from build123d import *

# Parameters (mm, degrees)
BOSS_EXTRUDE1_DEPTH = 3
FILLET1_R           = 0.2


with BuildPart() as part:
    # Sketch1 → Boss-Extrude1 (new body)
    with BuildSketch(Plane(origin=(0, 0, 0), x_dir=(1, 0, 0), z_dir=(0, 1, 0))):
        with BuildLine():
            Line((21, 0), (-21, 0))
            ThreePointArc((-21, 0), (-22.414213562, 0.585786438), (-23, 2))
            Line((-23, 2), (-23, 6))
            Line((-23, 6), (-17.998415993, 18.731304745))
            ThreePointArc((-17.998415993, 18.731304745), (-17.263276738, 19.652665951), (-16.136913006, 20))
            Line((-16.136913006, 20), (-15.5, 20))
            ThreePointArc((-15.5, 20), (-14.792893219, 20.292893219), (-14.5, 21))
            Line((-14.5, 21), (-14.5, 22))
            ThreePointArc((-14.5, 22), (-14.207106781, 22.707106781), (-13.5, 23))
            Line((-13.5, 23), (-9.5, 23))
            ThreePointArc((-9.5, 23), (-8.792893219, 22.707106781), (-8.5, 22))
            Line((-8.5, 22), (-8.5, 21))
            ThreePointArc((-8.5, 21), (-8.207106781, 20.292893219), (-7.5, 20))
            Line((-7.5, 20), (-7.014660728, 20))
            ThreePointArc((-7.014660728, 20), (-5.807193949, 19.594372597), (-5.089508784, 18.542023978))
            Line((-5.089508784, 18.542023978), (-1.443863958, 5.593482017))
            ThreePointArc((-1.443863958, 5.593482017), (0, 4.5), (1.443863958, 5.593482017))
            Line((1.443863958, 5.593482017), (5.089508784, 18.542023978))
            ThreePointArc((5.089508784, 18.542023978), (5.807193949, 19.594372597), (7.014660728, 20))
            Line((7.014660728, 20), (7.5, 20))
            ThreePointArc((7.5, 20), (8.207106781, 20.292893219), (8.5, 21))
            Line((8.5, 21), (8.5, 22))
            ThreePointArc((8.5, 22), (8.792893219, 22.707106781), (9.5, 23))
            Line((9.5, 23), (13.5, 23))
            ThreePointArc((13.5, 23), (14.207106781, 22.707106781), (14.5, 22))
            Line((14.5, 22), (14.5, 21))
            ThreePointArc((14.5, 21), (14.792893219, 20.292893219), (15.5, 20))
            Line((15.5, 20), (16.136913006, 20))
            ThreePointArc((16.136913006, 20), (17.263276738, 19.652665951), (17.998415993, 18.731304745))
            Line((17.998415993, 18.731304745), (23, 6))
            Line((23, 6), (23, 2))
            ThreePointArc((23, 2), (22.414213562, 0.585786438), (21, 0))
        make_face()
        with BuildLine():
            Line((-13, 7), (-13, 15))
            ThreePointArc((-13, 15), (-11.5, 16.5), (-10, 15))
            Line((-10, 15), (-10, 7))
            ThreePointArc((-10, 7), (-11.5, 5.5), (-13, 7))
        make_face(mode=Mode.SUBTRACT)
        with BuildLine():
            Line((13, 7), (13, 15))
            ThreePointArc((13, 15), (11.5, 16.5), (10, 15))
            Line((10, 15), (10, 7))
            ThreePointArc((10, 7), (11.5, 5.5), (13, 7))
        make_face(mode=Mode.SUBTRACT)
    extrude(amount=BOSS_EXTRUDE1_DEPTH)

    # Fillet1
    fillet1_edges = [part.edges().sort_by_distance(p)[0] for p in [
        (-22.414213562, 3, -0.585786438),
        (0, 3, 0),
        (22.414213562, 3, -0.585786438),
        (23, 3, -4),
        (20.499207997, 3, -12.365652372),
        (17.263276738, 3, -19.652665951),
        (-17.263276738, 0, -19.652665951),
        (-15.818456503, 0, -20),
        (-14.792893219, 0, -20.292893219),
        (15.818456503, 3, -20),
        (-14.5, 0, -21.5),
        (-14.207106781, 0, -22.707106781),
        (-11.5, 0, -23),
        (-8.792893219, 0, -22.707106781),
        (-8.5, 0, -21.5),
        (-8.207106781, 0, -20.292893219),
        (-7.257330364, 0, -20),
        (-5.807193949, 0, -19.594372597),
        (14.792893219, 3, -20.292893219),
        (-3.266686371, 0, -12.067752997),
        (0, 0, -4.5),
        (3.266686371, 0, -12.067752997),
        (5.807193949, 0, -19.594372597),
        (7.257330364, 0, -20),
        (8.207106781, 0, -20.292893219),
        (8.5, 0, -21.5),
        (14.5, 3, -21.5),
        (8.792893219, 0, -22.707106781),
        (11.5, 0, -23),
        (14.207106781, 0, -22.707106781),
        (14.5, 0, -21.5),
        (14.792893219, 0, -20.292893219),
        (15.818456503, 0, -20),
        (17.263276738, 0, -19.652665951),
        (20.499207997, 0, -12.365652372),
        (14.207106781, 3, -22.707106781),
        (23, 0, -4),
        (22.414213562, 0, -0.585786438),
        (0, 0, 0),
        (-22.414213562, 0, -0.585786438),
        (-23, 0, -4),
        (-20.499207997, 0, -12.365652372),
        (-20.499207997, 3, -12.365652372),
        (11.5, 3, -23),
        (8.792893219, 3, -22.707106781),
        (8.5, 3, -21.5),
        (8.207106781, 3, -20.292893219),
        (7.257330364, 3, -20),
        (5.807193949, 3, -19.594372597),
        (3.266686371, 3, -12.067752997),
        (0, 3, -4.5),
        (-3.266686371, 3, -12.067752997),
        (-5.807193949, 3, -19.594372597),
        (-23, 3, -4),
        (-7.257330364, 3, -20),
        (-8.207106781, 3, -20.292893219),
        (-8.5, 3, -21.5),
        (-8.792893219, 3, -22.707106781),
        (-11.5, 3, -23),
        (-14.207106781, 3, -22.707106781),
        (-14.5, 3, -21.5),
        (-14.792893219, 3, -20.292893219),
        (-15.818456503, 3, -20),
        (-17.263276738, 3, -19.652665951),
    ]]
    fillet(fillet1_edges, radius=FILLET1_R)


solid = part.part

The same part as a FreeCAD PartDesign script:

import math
import FreeCAD as App
import Part
import Sketcher

V = App.Vector
Q = App.Units.Quantity


def edges_at(feature, points):
    """Names of the edges that pass closest to the given points."""
    edges = feature.Shape.Edges
    near = lambda p: min(range(len(edges)), key=lambda i: edges[i].distToShape(Part.Vertex(*p))[0])
    return sorted({f"Edge{near(p) + 1}" for p in points})

doc = App.newDocument("Part")
params = doc.addObject("Spreadsheet::Sheet", "Params")
for row, (alias, value) in enumerate([
    ("sketch1_radius", "2 mm"),
    ("sketch1_radius2", "1 mm"),
    ("sketch1_radius3", "1.5 mm"),
    ("sketch1_width", "42 mm"),
    ("sketch1_width2", "4 mm"),
    ("pad1_length", "3 mm"),
    ("fillet_radius", "0.2 mm"),
], start=1):
    params.set(f"A{row}", alias)
    params.set(f"B{row}", "=" + value)
    params.setAlias(f"B{row}", alias)

body = doc.addObject("PartDesign::Body", "Body")

# Sketch on XZ plane
sketch1 = body.newObject("Sketcher::SketchObject", "Sketch")
sketch1.AttachmentSupport = (doc.getObject("XZ_Plane"), [""])
sketch1.MapMode = "FlatFace"
sketch1.addGeometry([
    Part.LineSegment(V(-21, 0, 0), V(21, 0, 0)),  # 0
    Part.ArcOfCircle(Part.Circle(V(21, -2, 0), V(0, 0, 1), 2), math.radians(0), math.radians(90)),  # 1
    Part.LineSegment(V(23, -2, 0), V(23, -6, 0)),  # 2
    Part.LineSegment(V(23, -6, 0), V(17.998416, -18.731305, 0)),  # 3
    Part.ArcOfCircle(Part.Circle(V(16.136913, -18, 0), V(0, 0, 1), 2), math.radians(-90), math.radians(-21.447736)),  # 4
    Part.LineSegment(V(16.136913, -20, 0), V(15.5, -20, 0)),  # 5
    Part.ArcOfCircle(Part.Circle(V(15.5, -21, 0), V(0, 0, 1), 1), math.radians(90), math.radians(180)),  # 6
    Part.LineSegment(V(14.5, -21, 0), V(14.5, -22, 0)),  # 7
    Part.ArcOfCircle(Part.Circle(V(13.5, -22, 0), V(0, 0, 1), 1), math.radians(-90), math.radians(0)),  # 8
    Part.LineSegment(V(13.5, -23, 0), V(9.5, -23, 0)),  # 9
    Part.ArcOfCircle(Part.Circle(V(9.5, -22, 0), V(0, 0, 1), 1), math.radians(-180), math.radians(-90)),  # 10
    Part.LineSegment(V(8.5, -22, 0), V(8.5, -21, 0)),  # 11
    Part.ArcOfCircle(Part.Circle(V(7.5, -21, 0), V(0, 0, 1), 1), math.radians(0), math.radians(90)),  # 12
    Part.LineSegment(V(7.5, -20, 0), V(7.014661, -20, 0)),  # 13
    Part.ArcOfCircle(Part.Circle(V(7.014661, -18, 0), V(0, 0, 1), 2), math.radians(-164.275505), math.radians(-90)),  # 14
    Part.LineSegment(V(5.089509, -18.542024, 0), V(1.443864, -5.593482, 0)),  # 15
    Part.ArcOfCircle(Part.Circle(V(0, -6, 0), V(0, 0, 1), 1.5), math.radians(15.724495), math.radians(164.275505)),  # 16
    Part.LineSegment(V(-1.443864, -5.593482, 0), V(-5.089509, -18.542024, 0)),  # 17
    Part.ArcOfCircle(Part.Circle(V(-7.014661, -18, 0), V(0, 0, 1), 2), math.radians(-90), math.radians(-15.724495)),  # 18
    Part.LineSegment(V(-7.014661, -20, 0), V(-7.5, -20, 0)),  # 19
    Part.ArcOfCircle(Part.Circle(V(-7.5, -21, 0), V(0, 0, 1), 1), math.radians(90), math.radians(180)),  # 20
    Part.LineSegment(V(-8.5, -21, 0), V(-8.5, -22, 0)),  # 21
    Part.ArcOfCircle(Part.Circle(V(-9.5, -22, 0), V(0, 0, 1), 1), math.radians(-90), math.radians(0)),  # 22
    Part.LineSegment(V(-9.5, -23, 0), V(-13.5, -23, 0)),  # 23
    Part.ArcOfCircle(Part.Circle(V(-13.5, -22, 0), V(0, 0, 1), 1), math.radians(-180), math.radians(-90)),  # 24
    Part.LineSegment(V(-14.5, -22, 0), V(-14.5, -21, 0)),  # 25
    Part.ArcOfCircle(Part.Circle(V(-15.5, -21, 0), V(0, 0, 1), 1), math.radians(0), math.radians(90)),  # 26
    Part.LineSegment(V(-15.5, -20, 0), V(-16.136913, -20, 0)),  # 27
    Part.ArcOfCircle(Part.Circle(V(-16.136913, -18, 0), V(0, 0, 1), 2), math.radians(-158.552264), math.radians(-90)),  # 28
    Part.LineSegment(V(-17.998416, -18.731305, 0), V(-23, -6, 0)),  # 29
    Part.LineSegment(V(-23, -6, 0), V(-23, -2, 0)),  # 30
    Part.ArcOfCircle(Part.Circle(V(-21, -2, 0), V(0, 0, 1), 2), math.radians(90), math.radians(180)),  # 31
    Part.ArcOfCircle(Part.Circle(V(11.5, -7, 0), V(0, 0, 1), 1.5), math.radians(0), math.radians(180)),  # 32
    Part.LineSegment(V(10, -7, 0), V(10, -15, 0)),  # 33
    Part.ArcOfCircle(Part.Circle(V(11.5, -15, 0), V(0, 0, 1), 1.5), math.radians(180), math.radians(360)),  # 34
    Part.LineSegment(V(13, -15, 0), V(13, -7, 0)),  # 35
    Part.LineSegment(V(-13, -7, 0), V(-13, -15, 0)),  # 36
    Part.ArcOfCircle(Part.Circle(V(-11.5, -15, 0), V(0, 0, 1), 1.5), math.radians(180), math.radians(360)),  # 37
    Part.LineSegment(V(-10, -15, 0), V(-10, -7, 0)),  # 38
    Part.ArcOfCircle(Part.Circle(V(-11.5, -7, 0), V(0, 0, 1), 1.5), math.radians(0), math.radians(180)),  # 39
], False)
sketch1.addConstraint([
    Sketcher.Constraint("Tangent", 0, 2, 1, 2),
    Sketcher.Constraint("Tangent", 1, 1, 2, 1),
    Sketcher.Constraint("Coincident", 2, 2, 3, 1),
    Sketcher.Constraint("Tangent", 3, 2, 4, 2),
    Sketcher.Constraint("Tangent", 4, 1, 5, 1),
    Sketcher.Constraint("Tangent", 5, 2, 6, 1),
    Sketcher.Constraint("Tangent", 6, 2, 7, 1),
    Sketcher.Constraint("Tangent", 7, 2, 8, 2),
    Sketcher.Constraint("Tangent", 8, 1, 9, 1),
    Sketcher.Constraint("Tangent", 9, 2, 10, 2),
    Sketcher.Constraint("Tangent", 10, 1, 11, 1),
    Sketcher.Constraint("Tangent", 11, 2, 12, 1),
    Sketcher.Constraint("Tangent", 12, 2, 13, 1),
    Sketcher.Constraint("Tangent", 13, 2, 14, 2),
    Sketcher.Constraint("Tangent", 14, 1, 15, 1),
    Sketcher.Constraint("Tangent", 15, 2, 16, 1),
    Sketcher.Constraint("Tangent", 16, 2, 17, 1),
    Sketcher.Constraint("Tangent", 17, 2, 18, 2),
    Sketcher.Constraint("Tangent", 18, 1, 19, 1),
    Sketcher.Constraint("Tangent", 19, 2, 20, 1),
    Sketcher.Constraint("Tangent", 20, 2, 21, 1),
    Sketcher.Constraint("Tangent", 21, 2, 22, 2),
    Sketcher.Constraint("Tangent", 22, 1, 23, 1),
    Sketcher.Constraint("Tangent", 23, 2, 24, 2),
    Sketcher.Constraint("Tangent", 24, 1, 25, 1),
    Sketcher.Constraint("Tangent", 25, 2, 26, 1),
    Sketcher.Constraint("Tangent", 26, 2, 27, 1),
    Sketcher.Constraint("Tangent", 27, 2, 28, 2),
    Sketcher.Constraint("Tangent", 28, 1, 29, 1),
    Sketcher.Constraint("Coincident", 29, 2, 30, 1),
    Sketcher.Constraint("Tangent", 30, 2, 31, 2),
    Sketcher.Constraint("Tangent", 31, 1, 0, 1),
    Sketcher.Constraint("Tangent", 32, 2, 33, 1),
    Sketcher.Constraint("Tangent", 33, 2, 34, 1),
    Sketcher.Constraint("Tangent", 34, 2, 35, 1),
    Sketcher.Constraint("Tangent", 35, 2, 32, 1),
    Sketcher.Constraint("Tangent", 36, 2, 37, 1),
    Sketcher.Constraint("Tangent", 37, 2, 38, 1),
    Sketcher.Constraint("Tangent", 38, 2, 39, 1),
    Sketcher.Constraint("Tangent", 39, 2, 36, 1),
    Sketcher.Constraint("Horizontal", 0),
    Sketcher.Constraint("Vertical", 2),
    Sketcher.Constraint("Horizontal", 5),
    Sketcher.Constraint("Vertical", 7),
    Sketcher.Constraint("Horizontal", 9),
    Sketcher.Constraint("Vertical", 11),
    Sketcher.Constraint("Horizontal", 13),
    Sketcher.Constraint("Horizontal", 19),
    Sketcher.Constraint("Vertical", 21),
    Sketcher.Constraint("Horizontal", 23),
    Sketcher.Constraint("Vertical", 25),
    Sketcher.Constraint("Horizontal", 27),
    Sketcher.Constraint("Vertical", 30),
    Sketcher.Constraint("Vertical", 33),
    Sketcher.Constraint("Vertical", 35),
    Sketcher.Constraint("Vertical", 36),
    Sketcher.Constraint("Vertical", 38),
    Sketcher.Constraint("Equal", 1, 4),
    Sketcher.Constraint("Equal", 6, 8),
    Sketcher.Constraint("Equal", 8, 10),
    Sketcher.Constraint("Equal", 10, 12),
    Sketcher.Constraint("Equal", 4, 14),
    Sketcher.Constraint("Equal", 14, 18),
    Sketcher.Constraint("Equal", 12, 20),
    Sketcher.Constraint("Equal", 20, 22),
    Sketcher.Constraint("Equal", 22, 24),
    Sketcher.Constraint("Equal", 24, 26),
    Sketcher.Constraint("Equal", 18, 28),
    Sketcher.Constraint("Equal", 28, 31),
    Sketcher.Constraint("Equal", 16, 32),
    Sketcher.Constraint("Equal", 34, 37),
    Sketcher.Constraint("Symmetric", 0, 2, 31, 1, -1, 1),
    Sketcher.Constraint("Symmetric", 14, 3, 18, 3, -2),
    Sketcher.Constraint("Symmetric", 10, 3, 22, 3, -2),
    Sketcher.Constraint("Symmetric", 6, 3, 26, 3, -2),
    Sketcher.Constraint("Symmetric", 34, 3, 37, 3, -2),
    Sketcher.Constraint("Symmetric", 3, 2, 28, 1, -2),
    Sketcher.Constraint("PointOnObject", 16, 3, -2),
    Sketcher.Constraint("Horizontal", 6, 3, 12, 3),
    Sketcher.Constraint("Horizontal", 32, 3, 39, 3),
    Sketcher.Constraint("Horizontal", 16, 3, 2, 2),
    Sketcher.Constraint("Equal", 23, 2),
    Sketcher.Constraint("Radius", 1, Q("2 mm")),
    Sketcher.Constraint("Radius", 6, Q("1 mm")),
    Sketcher.Constraint("Radius", 16, Q("1.5 mm")),
    Sketcher.Constraint("DistanceX", 0, 1, 0, 2, Q("42 mm")),
    Sketcher.Constraint("DistanceX", 9, 2, 9, 1, Q("4 mm")),
    Sketcher.Constraint("DistanceY", 7, 2, 7, 1, Q("1 mm")),
    Sketcher.Constraint("DistanceY", 33, 2, 33, 1, Q("8 mm")),
    Sketcher.Constraint("DistanceY", 4, 3, -1, 1, Q("18 mm")),
    Sketcher.Constraint("DistanceY", 32, 3, -1, 1, Q("7 mm")),
    Sketcher.Constraint("DistanceX", -1, 1, 32, 2, Q("10 mm")),
    Sketcher.Constraint("DistanceX", 20, 3, 12, 3, Q("15 mm")),
    Sketcher.Constraint("DistanceX", 13, 2, 13, 1, Q("0.485339 mm")),
    Sketcher.Constraint("Distance", 3, Q("13.678522 mm")),
])
sketch1.setExpression("Constraints[82]", "Params.sketch1_radius")
sketch1.setExpression("Constraints[83]", "Params.sketch1_radius2")
sketch1.setExpression("Constraints[84]", "Params.sketch1_radius3")
sketch1.setExpression("Constraints[85]", "Params.sketch1_width")
sketch1.setExpression("Constraints[86]", "Params.sketch1_width2")
pad1 = body.newObject("PartDesign::Pad", "Pad")
pad1.Profile = sketch1
pad1.setExpression("Length", "Params.pad1_length")
pad1.Reversed = True
doc.recompute()

fillet = body.newObject("PartDesign::Fillet", "Fillet")
fillet.Base = (pad1, edges_at(pad1, [
    (-22.414, 3, -0.586),
    (0, 3, 0),
    (22.414, 3, -0.586),
    (23, 3, -4),
    (20.499, 3, -12.366),
    (17.263, 3, -19.653),
    (-17.263, 0, -19.653),
    (-15.818, 0, -20),
    (-14.793, 0, -20.293),
    (15.818, 3, -20),
    (-14.5, 0, -21.5),
    (-14.207, 0, -22.707),
    (-11.5, 0, -23),
    (-8.793, 0, -22.707),
    (-8.5, 0, -21.5),
    (-8.207, 0, -20.293),
    (-7.257, 0, -20),
    (-5.807, 0, -19.594),
    (14.793, 3, -20.293),
    (-3.267, 0, -12.068),
    (0, 0, -4.5),
    (3.267, 0, -12.068),
    (5.807, 0, -19.594),
    (7.257, 0, -20),
    (8.207, 0, -20.293),
    (8.5, 0, -21.5),
    (14.5, 3, -21.5),
    (8.793, 0, -22.707),
    (11.5, 0, -23),
    (14.207, 0, -22.707),
    (14.5, 0, -21.5),
    (14.793, 0, -20.293),
    (15.818, 0, -20),
    (17.263, 0, -19.653),
    (20.499, 0, -12.366),
    (14.207, 3, -22.707),
    (23, 0, -4),
    (22.414, 0, -0.586),
    (0, 0, 0),
    (-22.414, 0, -0.586),
    (-23, 0, -4),
    (-20.499, 0, -12.366),
    (-20.499, 3, -12.366),
    (11.5, 3, -23),
    (8.793, 3, -22.707),
    (8.5, 3, -21.5),
    (8.207, 3, -20.293),
    (7.257, 3, -20),
    (5.807, 3, -19.594),
    (3.267, 3, -12.068),
    (0, 3, -4.5),
    (-3.267, 3, -12.068),
    (-5.807, 3, -19.594),
    (-23, 3, -4),
    (-7.257, 3, -20),
    (-8.207, 3, -20.293),
    (-8.5, 3, -21.5),
    (-8.793, 3, -22.707),
    (-11.5, 3, -23),
    (-14.207, 3, -22.707),
    (-14.5, 3, -21.5),
    (-14.793, 3, -20.293),
    (-15.818, 3, -20),
    (-17.263, 3, -19.653),
]))
fillet.setExpression("Radius", "Params.fillet_radius")

doc.recompute()
